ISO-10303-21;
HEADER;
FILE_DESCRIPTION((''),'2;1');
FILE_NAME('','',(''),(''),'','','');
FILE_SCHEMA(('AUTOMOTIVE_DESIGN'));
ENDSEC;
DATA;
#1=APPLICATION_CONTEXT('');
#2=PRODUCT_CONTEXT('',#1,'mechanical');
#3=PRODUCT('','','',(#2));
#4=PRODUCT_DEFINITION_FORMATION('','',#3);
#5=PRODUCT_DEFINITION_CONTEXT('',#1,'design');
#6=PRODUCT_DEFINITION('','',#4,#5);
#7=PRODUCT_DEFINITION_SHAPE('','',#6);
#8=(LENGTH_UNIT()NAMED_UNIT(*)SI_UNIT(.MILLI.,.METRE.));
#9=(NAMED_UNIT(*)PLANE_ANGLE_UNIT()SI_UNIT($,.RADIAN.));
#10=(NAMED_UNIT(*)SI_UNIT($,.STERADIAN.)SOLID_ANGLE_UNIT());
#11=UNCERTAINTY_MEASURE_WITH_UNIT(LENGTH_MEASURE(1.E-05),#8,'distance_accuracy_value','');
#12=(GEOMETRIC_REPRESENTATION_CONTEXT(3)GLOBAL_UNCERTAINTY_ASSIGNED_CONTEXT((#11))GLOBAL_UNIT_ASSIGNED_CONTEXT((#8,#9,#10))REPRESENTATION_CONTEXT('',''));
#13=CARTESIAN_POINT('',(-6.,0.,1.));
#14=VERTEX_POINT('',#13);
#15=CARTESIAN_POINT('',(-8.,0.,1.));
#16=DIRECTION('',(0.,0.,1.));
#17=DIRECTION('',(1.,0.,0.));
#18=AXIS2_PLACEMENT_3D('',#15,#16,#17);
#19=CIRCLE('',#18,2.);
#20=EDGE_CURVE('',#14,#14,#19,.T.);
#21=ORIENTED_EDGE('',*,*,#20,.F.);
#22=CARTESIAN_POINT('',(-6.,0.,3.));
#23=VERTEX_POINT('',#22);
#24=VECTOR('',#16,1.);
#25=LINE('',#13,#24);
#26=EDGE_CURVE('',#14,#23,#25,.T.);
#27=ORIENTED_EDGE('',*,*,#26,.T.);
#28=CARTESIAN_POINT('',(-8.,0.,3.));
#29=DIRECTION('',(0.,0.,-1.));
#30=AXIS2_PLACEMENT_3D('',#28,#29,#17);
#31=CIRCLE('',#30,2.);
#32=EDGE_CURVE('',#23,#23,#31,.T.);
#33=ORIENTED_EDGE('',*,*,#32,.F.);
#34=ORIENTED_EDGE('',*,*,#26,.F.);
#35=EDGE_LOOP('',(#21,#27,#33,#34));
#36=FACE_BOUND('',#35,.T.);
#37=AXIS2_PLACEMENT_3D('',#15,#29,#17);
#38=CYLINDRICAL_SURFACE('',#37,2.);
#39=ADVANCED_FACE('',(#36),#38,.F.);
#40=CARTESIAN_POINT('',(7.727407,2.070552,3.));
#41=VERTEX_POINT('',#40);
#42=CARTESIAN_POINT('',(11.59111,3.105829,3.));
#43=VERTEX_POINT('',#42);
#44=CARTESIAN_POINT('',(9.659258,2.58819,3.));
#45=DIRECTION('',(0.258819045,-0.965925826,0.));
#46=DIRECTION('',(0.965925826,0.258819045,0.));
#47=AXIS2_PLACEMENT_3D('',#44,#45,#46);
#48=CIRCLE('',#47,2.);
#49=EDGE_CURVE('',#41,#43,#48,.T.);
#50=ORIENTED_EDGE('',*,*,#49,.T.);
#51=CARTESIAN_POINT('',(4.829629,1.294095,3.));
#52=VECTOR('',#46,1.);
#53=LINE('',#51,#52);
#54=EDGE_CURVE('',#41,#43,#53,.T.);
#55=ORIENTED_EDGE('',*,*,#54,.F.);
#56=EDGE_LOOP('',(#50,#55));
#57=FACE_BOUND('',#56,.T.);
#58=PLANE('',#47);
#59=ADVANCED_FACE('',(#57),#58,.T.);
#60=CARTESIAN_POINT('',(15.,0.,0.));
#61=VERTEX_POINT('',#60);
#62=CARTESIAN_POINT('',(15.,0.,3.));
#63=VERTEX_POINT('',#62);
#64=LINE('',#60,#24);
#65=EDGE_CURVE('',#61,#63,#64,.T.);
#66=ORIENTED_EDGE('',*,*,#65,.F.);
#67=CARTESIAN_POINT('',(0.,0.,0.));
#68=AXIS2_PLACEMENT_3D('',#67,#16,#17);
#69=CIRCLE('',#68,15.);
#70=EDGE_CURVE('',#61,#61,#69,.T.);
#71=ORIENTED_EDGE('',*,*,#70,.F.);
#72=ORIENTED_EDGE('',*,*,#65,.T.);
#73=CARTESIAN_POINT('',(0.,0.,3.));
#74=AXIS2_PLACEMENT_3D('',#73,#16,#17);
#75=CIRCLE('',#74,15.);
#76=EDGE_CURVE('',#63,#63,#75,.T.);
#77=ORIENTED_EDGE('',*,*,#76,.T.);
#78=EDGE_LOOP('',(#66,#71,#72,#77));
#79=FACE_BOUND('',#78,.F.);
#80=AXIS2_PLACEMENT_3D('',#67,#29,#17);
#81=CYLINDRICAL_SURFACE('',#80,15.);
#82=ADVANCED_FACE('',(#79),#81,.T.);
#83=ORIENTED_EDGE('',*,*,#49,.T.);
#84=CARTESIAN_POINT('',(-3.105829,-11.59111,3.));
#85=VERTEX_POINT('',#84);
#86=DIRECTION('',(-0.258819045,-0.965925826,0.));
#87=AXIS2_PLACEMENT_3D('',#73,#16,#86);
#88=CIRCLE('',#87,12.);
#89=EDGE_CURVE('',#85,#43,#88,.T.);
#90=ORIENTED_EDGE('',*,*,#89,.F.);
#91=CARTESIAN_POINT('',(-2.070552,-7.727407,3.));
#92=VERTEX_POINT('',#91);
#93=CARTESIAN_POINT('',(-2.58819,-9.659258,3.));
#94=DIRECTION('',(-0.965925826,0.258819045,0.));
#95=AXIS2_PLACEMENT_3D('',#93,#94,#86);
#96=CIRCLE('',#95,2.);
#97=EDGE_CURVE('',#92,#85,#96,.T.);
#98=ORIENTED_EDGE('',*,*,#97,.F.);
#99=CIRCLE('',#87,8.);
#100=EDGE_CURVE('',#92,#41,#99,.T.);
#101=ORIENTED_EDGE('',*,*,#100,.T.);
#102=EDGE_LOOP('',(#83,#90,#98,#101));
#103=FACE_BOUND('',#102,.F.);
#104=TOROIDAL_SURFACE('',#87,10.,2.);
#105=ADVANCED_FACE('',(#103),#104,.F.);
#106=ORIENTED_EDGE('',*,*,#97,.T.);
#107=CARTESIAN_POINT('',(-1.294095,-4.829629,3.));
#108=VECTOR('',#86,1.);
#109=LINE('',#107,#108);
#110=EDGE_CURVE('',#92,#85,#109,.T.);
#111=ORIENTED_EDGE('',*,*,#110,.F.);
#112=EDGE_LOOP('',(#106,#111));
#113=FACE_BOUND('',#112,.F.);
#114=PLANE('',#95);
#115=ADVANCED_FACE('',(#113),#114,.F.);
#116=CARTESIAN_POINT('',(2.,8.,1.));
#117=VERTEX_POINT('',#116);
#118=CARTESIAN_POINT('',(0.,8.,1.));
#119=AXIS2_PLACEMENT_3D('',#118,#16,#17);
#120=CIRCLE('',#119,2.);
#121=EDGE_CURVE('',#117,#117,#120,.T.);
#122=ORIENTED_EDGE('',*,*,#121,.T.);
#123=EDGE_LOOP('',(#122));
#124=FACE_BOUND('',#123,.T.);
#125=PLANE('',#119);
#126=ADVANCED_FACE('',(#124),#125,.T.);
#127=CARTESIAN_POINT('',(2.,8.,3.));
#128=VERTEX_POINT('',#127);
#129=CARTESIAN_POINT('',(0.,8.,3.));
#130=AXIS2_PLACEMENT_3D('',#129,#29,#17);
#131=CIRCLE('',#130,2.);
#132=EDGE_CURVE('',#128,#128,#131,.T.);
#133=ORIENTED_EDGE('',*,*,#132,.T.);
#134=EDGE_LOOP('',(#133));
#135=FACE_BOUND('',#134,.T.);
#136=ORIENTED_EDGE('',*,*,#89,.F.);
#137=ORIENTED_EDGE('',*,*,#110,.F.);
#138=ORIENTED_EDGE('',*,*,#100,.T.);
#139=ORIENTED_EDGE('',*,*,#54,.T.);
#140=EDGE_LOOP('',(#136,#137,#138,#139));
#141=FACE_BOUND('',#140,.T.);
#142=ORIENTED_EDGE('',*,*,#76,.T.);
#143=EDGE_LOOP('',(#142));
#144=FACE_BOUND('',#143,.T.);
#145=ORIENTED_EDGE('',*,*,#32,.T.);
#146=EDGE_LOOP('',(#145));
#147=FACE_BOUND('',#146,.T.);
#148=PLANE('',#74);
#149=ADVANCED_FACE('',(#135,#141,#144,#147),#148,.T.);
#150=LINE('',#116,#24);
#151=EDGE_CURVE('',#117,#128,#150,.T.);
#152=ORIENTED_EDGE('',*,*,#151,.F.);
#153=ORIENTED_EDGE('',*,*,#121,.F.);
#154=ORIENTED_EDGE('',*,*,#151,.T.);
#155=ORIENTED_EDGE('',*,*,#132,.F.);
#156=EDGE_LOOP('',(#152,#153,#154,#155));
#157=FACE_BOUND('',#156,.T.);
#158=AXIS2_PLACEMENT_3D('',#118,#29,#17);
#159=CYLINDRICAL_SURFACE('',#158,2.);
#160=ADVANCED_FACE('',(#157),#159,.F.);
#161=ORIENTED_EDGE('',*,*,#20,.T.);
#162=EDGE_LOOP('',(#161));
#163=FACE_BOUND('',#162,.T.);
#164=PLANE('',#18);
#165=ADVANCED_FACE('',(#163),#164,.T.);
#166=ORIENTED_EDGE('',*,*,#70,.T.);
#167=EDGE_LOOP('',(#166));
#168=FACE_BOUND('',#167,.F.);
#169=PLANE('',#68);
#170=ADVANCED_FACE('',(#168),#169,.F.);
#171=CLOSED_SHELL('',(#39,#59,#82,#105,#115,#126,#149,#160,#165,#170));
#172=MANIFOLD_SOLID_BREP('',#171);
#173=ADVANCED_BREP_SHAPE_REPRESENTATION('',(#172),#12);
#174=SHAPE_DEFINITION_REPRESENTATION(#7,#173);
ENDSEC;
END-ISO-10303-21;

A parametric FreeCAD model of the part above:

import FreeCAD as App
import Part
import Sketcher

V = App.Vector

doc = App.newDocument("Part")
params = doc.addObject("Spreadsheet::Sheet", "Params")
for row, (alias, value) in enumerate([
    ("sketch1_diameter", "4 mm"),
    ("pad1_length", "10 mm"),
    ("sketch2_diameter", "4 mm"),
    ("pad2_length", "10 mm"),
    ("sketch3_diameter", "4 mm"),
    ("revolution_angle", "120 deg"),
    ("sketch4_diameter", "30 mm"),
    ("pad3_length", "3 mm"),
], start=1):
    params.set(f"A{row}", alias)
    params.set(f"B{row}", "=" + value)
    params.setAlias(f"B{row}", alias)

body = doc.addObject("PartDesign::Body", "Body")

sketch1 = body.newObject("Sketcher::SketchObject", "Sketch")
sketch1.AttachmentSupport = (doc.getObject("XY_Plane"), [""])
sketch1.MapMode = "FlatFace"
sketch1.AttachmentOffset = App.Placement(V(0, 0, 1), App.Rotation())
sketch1.addGeometry(Part.Circle(V(0, 8, 0), V(0, 0, 1), 2), False)
sketch1.addConstraint([
    Sketcher.Constraint("PointOnObject", 0, 3, -2),
    Sketcher.Constraint("Diameter", 0, 4.0),
    Sketcher.Constraint("DistanceY", -1, 1, 0, 3, 8.0),
])
sketch1.setExpression("Constraints[1]", "Params.sketch1_diameter")
pad1 = body.newObject("PartDesign::Pad", "Pad")
pad1.Profile = sketch1
pad1.setExpression("Length", "Params.pad1_length")
body2 = doc.addObject("PartDesign::Body", "Body001")
body2.AllowCompound = True

sketch2 = body2.newObject("Sketcher::SketchObject", "Sketch001")
sketch2.AttachmentSupport = (doc.getObject("XY_Plane001"), [""])
sketch2.MapMode = "FlatFace"
sketch2.AttachmentOffset = App.Placement(V(0, 0, 1), App.Rotation())
sketch2.addGeometry(Part.Circle(V(-8, 0, 0), V(0, 0, 1), 2), False)
sketch2.addConstraint([
    Sketcher.Constraint("PointOnObject", 0, 3, -1),
    Sketcher.Constraint("Diameter", 0, 4.0),
    Sketcher.Constraint("DistanceX", 0, 3, -1, 1, 8.0),
])
sketch2.setExpression("Constraints[1]", "Params.sketch2_diameter")
pad2 = body2.newObject("PartDesign::Pad", "Pad001")
pad2.Profile = sketch2
pad2.setExpression("Length", "Params.pad2_length")
doc.recompute()

boolean = body2.newObject("PartDesign::Boolean", "Boolean")
boolean.Type = "Fuse"
boolean.addObjects([body])
body3 = doc.addObject("PartDesign::Body", "Body002")

sketch3 = body3.newObject("Sketcher::SketchObject", "Sketch002")
sketch3.AttachmentSupport = (doc.getObject("XZ_Plane002"), [""])
sketch3.MapMode = "FlatFace"
sketch3.addGeometry(Part.Circle(V(10, 0, 0), V(0, 0, 1), 2), False)
sketch3.addConstraint([
    Sketcher.Constraint("PointOnObject", 0, 3, -1),
    Sketcher.Constraint("Diameter", 0, 4.0),
    Sketcher.Constraint("DistanceX", -1, 1, 0, 3, 10.0),
])
sketch3.setExpression("Constraints[1]", "Params.sketch3_diameter")
revolution = body3.newObject("PartDesign::Revolution", "Revolution")
revolution.Profile = sketch3
revolution.ReferenceAxis = (sketch3, ["V_Axis"])
revolution.setExpression("Angle", "Params.revolution_angle")
body4 = doc.addObject("PartDesign::Body", "Body003")
doc.recompute()

body3.Placement = App.Placement(V(0, 0, 3), App.Rotation(V(0, 0, 1), 255))
boolean2 = body4.newObject("PartDesign::Boolean", "Boolean001")
boolean2.Type = "Fuse"
boolean2.addObjects([body3])
body5 = doc.addObject("PartDesign::Body", "Body004")

sketch4 = body5.newObject("Sketcher::SketchObject", "Sketch003")
sketch4.AttachmentSupport = (doc.getObject("XY_Plane004"), [""])
sketch4.MapMode = "FlatFace"
sketch4.addGeometry(Part.Circle(V(0, 0, 0), V(0, 0, 1), 15), False)
sketch4.addConstraint([
    Sketcher.Constraint("Coincident", 0, 3, -1, 1),
    Sketcher.Constraint("Diameter", 0, 30.0),
])
sketch4.setExpression("Constraints[1]", "Params.sketch4_diameter")
pad3 = body5.newObject("PartDesign::Pad", "Pad002")
pad3.Profile = sketch4
pad3.setExpression("Length", "Params.pad3_length")
doc.recompute()

boolean3 = body5.newObject("PartDesign::Boolean", "Boolean002")
boolean3.Type = "Cut"
boolean3.addObjects([body4])
doc.recompute()

boolean4 = body5.newObject("PartDesign::Boolean", "Boolean003")
boolean4.Type = "Cut"
boolean4.addObjects([body2])

doc.recompute()
